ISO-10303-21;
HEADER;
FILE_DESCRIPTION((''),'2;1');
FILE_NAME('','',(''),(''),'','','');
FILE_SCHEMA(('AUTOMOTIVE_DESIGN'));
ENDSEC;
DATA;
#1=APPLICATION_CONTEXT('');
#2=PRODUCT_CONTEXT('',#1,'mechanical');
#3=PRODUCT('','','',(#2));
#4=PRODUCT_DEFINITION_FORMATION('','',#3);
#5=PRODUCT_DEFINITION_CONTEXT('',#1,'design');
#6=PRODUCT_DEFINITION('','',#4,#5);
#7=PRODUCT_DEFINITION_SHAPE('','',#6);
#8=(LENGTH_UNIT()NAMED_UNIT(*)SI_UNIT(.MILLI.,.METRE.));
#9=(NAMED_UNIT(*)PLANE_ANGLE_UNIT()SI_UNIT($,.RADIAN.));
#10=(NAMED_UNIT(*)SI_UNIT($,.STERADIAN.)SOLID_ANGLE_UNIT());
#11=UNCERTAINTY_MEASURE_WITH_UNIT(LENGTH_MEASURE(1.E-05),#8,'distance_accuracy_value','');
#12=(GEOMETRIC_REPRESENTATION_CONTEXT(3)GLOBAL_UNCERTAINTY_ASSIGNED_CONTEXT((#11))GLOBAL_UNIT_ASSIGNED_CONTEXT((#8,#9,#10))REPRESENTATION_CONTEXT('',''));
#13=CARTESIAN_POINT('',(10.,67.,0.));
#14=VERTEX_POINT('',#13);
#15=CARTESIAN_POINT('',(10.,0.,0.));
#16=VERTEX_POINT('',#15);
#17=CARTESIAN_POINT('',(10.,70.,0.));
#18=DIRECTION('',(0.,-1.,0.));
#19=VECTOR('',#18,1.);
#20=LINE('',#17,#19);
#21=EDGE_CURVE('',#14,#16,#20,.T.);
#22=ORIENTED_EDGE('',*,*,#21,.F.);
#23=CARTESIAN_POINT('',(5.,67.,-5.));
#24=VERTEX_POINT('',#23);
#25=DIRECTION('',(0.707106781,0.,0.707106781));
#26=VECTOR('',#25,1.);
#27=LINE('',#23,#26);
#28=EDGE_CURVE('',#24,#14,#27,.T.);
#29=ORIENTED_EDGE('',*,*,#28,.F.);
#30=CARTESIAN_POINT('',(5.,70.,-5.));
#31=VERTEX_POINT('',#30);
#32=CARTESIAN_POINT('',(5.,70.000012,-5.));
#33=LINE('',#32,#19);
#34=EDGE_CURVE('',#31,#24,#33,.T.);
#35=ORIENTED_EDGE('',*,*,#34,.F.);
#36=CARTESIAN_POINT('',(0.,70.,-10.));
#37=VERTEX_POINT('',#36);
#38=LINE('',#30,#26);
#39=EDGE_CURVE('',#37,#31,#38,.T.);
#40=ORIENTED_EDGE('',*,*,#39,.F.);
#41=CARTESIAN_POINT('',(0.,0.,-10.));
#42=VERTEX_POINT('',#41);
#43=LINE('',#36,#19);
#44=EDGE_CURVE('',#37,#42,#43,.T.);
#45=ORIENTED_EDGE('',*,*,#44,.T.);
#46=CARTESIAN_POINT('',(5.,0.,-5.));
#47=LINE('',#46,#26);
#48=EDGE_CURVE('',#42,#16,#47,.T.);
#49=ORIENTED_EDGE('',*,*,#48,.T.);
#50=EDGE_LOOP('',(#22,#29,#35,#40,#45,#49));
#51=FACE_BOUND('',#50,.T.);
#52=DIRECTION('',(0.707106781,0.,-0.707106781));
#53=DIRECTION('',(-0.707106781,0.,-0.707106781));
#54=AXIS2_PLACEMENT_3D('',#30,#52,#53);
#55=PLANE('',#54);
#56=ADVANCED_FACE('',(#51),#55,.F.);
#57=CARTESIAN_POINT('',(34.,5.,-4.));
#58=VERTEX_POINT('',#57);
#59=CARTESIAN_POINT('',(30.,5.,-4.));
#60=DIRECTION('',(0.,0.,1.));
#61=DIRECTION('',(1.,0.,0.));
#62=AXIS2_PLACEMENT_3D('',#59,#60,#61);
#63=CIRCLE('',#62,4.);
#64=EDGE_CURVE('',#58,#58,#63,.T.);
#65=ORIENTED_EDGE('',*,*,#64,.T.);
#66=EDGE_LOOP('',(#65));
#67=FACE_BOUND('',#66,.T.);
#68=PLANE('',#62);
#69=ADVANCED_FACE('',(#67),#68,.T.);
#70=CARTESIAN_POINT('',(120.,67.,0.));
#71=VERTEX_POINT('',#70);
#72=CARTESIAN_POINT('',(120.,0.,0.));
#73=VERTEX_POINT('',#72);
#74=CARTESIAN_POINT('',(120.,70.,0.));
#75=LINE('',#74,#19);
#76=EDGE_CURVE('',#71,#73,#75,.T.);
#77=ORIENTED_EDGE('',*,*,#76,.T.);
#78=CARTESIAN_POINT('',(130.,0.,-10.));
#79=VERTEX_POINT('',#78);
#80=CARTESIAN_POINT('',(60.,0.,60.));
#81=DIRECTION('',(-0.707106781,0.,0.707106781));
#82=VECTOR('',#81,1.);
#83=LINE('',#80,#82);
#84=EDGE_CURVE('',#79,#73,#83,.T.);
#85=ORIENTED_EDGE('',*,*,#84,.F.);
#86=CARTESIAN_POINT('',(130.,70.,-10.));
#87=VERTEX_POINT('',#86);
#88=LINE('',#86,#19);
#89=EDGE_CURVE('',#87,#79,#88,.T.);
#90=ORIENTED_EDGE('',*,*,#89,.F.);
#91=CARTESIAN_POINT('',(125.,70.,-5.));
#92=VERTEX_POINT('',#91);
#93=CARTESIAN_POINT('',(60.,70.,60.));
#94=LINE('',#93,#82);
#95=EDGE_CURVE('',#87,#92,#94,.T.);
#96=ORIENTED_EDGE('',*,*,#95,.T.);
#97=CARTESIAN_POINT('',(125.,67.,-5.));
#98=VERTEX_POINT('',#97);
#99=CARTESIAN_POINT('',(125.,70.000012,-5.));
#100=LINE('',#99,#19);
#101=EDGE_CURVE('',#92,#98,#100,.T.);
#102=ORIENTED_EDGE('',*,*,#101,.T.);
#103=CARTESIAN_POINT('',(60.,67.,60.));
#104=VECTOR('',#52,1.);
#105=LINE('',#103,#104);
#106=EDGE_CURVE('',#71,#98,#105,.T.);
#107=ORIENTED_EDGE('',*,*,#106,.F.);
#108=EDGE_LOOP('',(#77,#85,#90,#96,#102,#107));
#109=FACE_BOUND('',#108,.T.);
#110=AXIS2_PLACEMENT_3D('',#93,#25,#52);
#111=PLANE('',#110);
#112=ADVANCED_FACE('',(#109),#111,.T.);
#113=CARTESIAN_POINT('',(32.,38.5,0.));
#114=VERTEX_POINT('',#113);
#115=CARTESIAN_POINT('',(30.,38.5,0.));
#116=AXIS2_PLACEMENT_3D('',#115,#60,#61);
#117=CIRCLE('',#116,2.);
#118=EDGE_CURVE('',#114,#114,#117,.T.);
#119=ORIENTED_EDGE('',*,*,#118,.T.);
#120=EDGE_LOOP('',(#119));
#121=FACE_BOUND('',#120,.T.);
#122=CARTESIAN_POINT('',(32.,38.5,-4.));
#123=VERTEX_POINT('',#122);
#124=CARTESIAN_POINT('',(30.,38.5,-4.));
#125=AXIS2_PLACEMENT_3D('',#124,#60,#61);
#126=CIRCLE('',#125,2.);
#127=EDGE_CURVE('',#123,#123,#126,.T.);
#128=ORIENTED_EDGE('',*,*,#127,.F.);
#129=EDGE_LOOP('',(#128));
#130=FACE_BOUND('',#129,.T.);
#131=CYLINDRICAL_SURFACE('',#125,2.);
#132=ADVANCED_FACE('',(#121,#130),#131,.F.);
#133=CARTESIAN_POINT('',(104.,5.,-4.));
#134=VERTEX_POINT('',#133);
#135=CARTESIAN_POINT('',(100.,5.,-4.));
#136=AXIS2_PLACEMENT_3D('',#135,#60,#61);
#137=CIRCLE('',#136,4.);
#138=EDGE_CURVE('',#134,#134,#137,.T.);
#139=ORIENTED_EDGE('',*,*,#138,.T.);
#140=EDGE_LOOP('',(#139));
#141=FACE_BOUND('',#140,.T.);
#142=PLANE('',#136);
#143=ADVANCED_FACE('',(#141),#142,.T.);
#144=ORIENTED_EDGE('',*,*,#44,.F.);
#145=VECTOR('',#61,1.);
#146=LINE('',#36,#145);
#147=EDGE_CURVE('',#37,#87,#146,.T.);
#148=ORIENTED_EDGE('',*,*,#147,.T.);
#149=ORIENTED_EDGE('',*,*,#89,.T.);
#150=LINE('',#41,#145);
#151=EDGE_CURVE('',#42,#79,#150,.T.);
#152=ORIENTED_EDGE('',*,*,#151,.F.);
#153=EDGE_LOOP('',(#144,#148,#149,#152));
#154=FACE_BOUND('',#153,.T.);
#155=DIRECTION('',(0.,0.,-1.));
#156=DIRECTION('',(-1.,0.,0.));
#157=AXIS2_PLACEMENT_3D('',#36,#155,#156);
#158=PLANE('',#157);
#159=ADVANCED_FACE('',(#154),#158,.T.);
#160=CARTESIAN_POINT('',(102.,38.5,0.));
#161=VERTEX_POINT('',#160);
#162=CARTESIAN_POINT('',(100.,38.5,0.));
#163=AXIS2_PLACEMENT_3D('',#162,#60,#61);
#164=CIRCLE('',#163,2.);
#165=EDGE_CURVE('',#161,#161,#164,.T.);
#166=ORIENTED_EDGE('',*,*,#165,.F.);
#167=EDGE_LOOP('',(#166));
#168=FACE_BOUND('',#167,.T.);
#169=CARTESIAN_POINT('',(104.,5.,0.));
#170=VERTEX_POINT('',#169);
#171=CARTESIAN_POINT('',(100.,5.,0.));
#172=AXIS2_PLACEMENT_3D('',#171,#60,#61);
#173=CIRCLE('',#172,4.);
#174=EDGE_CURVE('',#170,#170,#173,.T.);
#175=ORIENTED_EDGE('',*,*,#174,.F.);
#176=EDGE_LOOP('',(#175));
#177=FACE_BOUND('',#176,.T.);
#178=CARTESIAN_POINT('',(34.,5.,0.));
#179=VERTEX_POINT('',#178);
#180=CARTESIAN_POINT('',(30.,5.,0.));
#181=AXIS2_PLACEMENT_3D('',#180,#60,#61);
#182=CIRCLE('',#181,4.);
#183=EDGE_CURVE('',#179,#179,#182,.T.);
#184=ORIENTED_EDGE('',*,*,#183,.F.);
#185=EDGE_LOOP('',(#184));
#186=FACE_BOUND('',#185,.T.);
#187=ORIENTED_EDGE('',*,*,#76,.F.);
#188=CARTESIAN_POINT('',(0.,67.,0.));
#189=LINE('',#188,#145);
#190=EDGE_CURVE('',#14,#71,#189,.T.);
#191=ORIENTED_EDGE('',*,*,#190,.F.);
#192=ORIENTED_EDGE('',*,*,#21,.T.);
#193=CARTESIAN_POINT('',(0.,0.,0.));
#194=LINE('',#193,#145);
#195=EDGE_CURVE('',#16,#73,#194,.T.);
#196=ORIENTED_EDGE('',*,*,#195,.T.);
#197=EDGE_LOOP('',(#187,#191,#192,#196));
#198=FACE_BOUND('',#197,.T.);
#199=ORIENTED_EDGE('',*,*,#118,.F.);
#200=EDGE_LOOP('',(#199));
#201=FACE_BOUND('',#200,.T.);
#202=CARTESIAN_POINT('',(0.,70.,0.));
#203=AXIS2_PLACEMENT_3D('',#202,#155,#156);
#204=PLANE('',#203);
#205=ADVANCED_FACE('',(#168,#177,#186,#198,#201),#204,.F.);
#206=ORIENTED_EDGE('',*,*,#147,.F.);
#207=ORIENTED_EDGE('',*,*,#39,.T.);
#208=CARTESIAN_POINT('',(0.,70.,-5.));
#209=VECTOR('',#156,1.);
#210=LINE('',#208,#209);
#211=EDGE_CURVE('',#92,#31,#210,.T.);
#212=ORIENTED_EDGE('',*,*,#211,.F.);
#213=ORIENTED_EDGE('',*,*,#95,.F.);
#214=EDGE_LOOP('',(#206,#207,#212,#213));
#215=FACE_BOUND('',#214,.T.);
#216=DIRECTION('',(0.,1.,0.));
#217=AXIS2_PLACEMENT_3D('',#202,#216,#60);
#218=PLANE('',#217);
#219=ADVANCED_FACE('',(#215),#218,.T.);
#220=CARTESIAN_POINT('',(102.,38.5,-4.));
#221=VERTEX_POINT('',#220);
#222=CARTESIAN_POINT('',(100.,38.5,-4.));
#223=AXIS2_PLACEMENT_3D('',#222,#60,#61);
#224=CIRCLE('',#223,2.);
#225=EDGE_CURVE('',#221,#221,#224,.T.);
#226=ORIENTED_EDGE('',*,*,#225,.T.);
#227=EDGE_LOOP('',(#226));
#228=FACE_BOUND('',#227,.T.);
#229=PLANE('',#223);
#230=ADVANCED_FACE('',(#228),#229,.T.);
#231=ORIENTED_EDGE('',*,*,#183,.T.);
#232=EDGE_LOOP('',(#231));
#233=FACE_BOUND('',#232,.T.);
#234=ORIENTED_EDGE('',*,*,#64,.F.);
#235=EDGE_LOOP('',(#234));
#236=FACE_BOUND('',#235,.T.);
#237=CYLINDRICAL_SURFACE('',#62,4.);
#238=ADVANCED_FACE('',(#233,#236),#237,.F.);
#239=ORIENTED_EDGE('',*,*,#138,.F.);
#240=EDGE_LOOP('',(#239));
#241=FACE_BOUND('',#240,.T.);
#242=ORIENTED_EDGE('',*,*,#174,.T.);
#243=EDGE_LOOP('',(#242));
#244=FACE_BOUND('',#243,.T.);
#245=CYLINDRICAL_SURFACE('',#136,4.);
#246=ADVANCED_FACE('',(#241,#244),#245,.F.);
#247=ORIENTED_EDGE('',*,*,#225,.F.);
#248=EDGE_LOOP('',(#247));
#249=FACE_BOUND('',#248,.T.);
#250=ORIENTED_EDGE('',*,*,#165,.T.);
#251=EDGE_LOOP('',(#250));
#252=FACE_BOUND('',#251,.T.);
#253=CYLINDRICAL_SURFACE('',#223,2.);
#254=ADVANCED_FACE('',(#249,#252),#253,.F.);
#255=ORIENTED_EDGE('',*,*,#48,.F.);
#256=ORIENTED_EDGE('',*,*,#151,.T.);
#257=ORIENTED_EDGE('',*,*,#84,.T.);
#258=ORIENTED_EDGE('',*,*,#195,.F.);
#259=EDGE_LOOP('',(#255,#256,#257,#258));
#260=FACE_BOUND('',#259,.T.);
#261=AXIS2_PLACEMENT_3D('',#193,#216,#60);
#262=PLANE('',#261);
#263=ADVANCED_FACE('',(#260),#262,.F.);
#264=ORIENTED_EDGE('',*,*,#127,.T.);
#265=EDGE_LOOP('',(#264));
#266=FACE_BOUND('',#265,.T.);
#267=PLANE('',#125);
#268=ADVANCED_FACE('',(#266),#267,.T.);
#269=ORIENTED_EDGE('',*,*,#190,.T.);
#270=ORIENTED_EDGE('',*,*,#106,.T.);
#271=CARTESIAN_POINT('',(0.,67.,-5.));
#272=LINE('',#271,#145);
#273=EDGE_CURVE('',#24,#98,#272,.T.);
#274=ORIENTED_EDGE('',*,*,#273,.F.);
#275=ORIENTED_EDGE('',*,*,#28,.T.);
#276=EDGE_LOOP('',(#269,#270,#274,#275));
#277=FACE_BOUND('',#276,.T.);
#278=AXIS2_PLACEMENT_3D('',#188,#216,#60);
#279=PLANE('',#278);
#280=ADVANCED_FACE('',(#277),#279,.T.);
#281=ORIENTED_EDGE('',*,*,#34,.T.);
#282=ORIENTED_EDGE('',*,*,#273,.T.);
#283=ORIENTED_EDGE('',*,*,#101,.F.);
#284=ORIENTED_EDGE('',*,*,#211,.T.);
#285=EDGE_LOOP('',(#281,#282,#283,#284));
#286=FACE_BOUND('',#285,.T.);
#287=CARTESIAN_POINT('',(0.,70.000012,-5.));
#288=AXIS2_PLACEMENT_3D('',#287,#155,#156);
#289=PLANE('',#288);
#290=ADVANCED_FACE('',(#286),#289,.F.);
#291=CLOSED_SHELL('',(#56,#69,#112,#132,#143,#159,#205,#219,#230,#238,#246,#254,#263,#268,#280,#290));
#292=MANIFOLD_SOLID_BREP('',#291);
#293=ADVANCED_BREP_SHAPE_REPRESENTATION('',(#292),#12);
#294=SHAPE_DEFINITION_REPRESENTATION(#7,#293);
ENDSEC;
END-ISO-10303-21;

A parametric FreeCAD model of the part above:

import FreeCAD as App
import Part
import Sketcher
Q = App.Units.Quantity

doc = App.newDocument("Part")
body = doc.addObject("PartDesign::Body", "Body")

sketch1 = body.newObject("Sketcher::SketchObject", "Sketch")
sketch1.AttachmentSupport = (doc.getObject("XZ_Plane"), [""])
sketch1.MapMode = "FlatFace"
sketch1.addGeometry([
    Part.LineSegment(App.Vector(130, -10, 0), App.Vector(0, -10, 0)),
    Part.LineSegment(App.Vector(0, -10, 0), App.Vector(10, 0, 0)),
    Part.LineSegment(App.Vector(10, 0, 0), App.Vector(120, 0, 0)),
    Part.LineSegment(App.Vector(120, 0, 0), App.Vector(130, -10, 0)),
], False)
sketch1.addConstraint([
    Sketcher.Constraint("Coincident", 0, 2, 1, 1),
    Sketcher.Constraint("Coincident", 1, 2, 2, 1),
    Sketcher.Constraint("Coincident", 2, 2, 3, 1),
    Sketcher.Constraint("Coincident", 3, 2, 0, 1),
    Sketcher.Constraint("Horizontal", 0),
    Sketcher.Constraint("Horizontal", 2),
    Sketcher.Constraint("PointOnObject", 0, 2, -2),
    Sketcher.Constraint("PointOnObject", 1, 2, -1),
    Sketcher.Constraint("Perpendicular", 1, 3),
    Sketcher.Constraint("Equal", 1, 3),
    Sketcher.Constraint("DistanceX", 0, 2, 0, 1, Q("130 mm")),
    Sketcher.Constraint("DistanceX", 2, 1, 2, 2, Q("110 mm")),
])
pad1 = body.newObject("PartDesign::Pad", "Pad")
pad1.Profile = sketch1
pad1.Length = 70
pad1.Reversed = True

sketch2 = body.newObject("Sketcher::SketchObject", "Sketch001")
sketch2.AttachmentSupport = (doc.getObject("XZ_Plane"), [""])
sketch2.MapMode = "FlatFace"
sketch2.AttachmentOffset = App.Placement(App.Vector(0, 0, -70), App.Rotation())
sketch2.addGeometry([
    Part.LineSegment(App.Vector(125, -5, 0), App.Vector(5, -5, 0)),
    Part.LineSegment(App.Vector(5, -5, 0), App.Vector(10, 0, 0)),
    Part.LineSegment(App.Vector(10, 0, 0), App.Vector(120, 0, 0)),
    Part.LineSegment(App.Vector(120, 0, 0), App.Vector(125, -5, 0)),
], False)
sketch2.addConstraint([
    Sketcher.Constraint("Coincident", 0, 2, 1, 1),
    Sketcher.Constraint("Coincident", 1, 2, 2, 1),
    Sketcher.Constraint("Coincident", 2, 2, 3, 1),
    Sketcher.Constraint("Coincident", 3, 2, 0, 1),
    Sketcher.Constraint("Horizontal", 0),
    Sketcher.Constraint("Horizontal", 2),
    Sketcher.Constraint("PointOnObject", 1, 2, -1),
    Sketcher.Constraint("Perpendicular", 1, 3),
    Sketcher.Constraint("Equal", 1, 3),
    Sketcher.Constraint("DistanceX", 0, 2, 0, 1, Q("120 mm")),
    Sketcher.Constraint("DistanceX", 2, 1, 2, 2, Q("110 mm")),
    Sketcher.Constraint("DistanceX", -1, 1, 0, 2, Q("5 mm")),
])
pocket1 = body.newObject("PartDesign::Pocket", "Pocket")
pocket1.Profile = sketch2
pocket1.Type = "TwoLengths"
pocket1.Length = 148.986486
pocket1.Length2 = 3

sketch3 = body.newObject("Sketcher::SketchObject", "Sketch002")
sketch3.AttachmentSupport = (doc.getObject("XY_Plane"), [""])
sketch3.MapMode = "FlatFace"
sketch3.addGeometry([
    Part.Circle(App.Vector(30, 5, 0), App.Vector(0, 0, 1), 4),
    Part.Circle(App.Vector(100, 5, 0), App.Vector(0, 0, 1), 4),
], False)
sketch3.addConstraint([
    Sketcher.Constraint("Equal", 0, 1),
    Sketcher.Constraint("Horizontal", 0, 3, 1, 3),
    Sketcher.Constraint("Diameter", 0, Q("8 mm")),
    Sketcher.Constraint("DistanceX", -1, 1, 0, 3, Q("30 mm")),
    Sketcher.Constraint("DistanceY", -1, 1, 0, 3, Q("5 mm")),
    Sketcher.Constraint("DistanceX", -1, 1, 1, 3, Q("100 mm")),
])
pocket2 = body.newObject("PartDesign::Pocket", "Pocket001")
pocket2.Profile = sketch3
pocket2.Length = 4

sketch4 = body.newObject("Sketcher::SketchObject", "Sketch003")
sketch4.AttachmentSupport = (doc.getObject("XY_Plane"), [""])
sketch4.MapMode = "FlatFace"
sketch4.addGeometry([
    Part.Circle(App.Vector(30, 38.5, 0), App.Vector(0, 0, 1), 2),
    Part.Circle(App.Vector(100, 38.5, 0), App.Vector(0, 0, 1), 2),
], False)
sketch4.addConstraint([
    Sketcher.Constraint("Equal", 0, 1),
    Sketcher.Constraint("Horizontal", 0, 3, 1, 3),
    Sketcher.Constraint("Diameter", 0, Q("4 mm")),
    Sketcher.Constraint("DistanceX", -1, 1, 0, 3, Q("30 mm")),
    Sketcher.Constraint("DistanceX", -1, 1, 1, 3, Q("100 mm")),
    Sketcher.Constraint("DistanceY", -1, 1, 0, 3, Q("38.5 mm")),
])
pocket3 = body.newObject("PartDesign::Pocket", "Pocket002")
pocket3.Profile = sketch4
pocket3.Length = 4

doc.recompute()
